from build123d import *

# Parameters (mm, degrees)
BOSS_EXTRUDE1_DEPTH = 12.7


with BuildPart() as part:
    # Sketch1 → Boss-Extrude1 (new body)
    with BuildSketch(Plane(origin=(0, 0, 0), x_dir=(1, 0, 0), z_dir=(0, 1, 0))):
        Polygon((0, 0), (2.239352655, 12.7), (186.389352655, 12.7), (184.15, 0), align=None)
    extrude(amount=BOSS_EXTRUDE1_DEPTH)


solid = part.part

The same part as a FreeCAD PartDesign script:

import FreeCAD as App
import Part
import Sketcher
from FreeCAD import Vector
Q = App.Units.Quantity


def add_polygon(sketch, points):
    """Adds a closed chain of lines whose ends are joined by coincident constraints."""
    first, n = sketch.GeometryCount, len(points)
    for a, b in zip(points, points[1:] + points[:1]):
        sketch.addGeometry(Part.LineSegment(App.Vector(*a, 0), App.Vector(*b, 0)), False)
    for i in range(n):
        sketch.addConstraint(Sketcher.Constraint("Coincident", first + i, 2, first + (i + 1) % n, 1))

doc = App.newDocument("Part")
body = doc.addObject("PartDesign::Body", "Body")

# Sketch on XZ plane
sketch1 = doc.addObject("Sketcher::SketchObject", "Sketch")
body.addObject(sketch1)
sketch1.AttachmentSupport = (doc.XZ_Plane, [""])
sketch1.MapMode = "FlatFace"
add_polygon(sketch1, [(2, -13), (0, 0), (184, 0), (186, -13)])  # lines 0-3
sketch1.addConstraint([
    Sketcher.Constraint("Horizontal", 1),
    Sketcher.Constraint("Horizontal", 3),
    Sketcher.Constraint("Coincident", 0, 2, -1, 1),
    Sketcher.Constraint("Parallel", 0, 2),
    Sketcher.Constraint("Angle", 0, Q("100 deg")),
    Sketcher.Constraint("DistanceX", 1, 1, 1, 2, Q("7.25 in")),
    Sketcher.Constraint("DistanceY", 2, 2, -1, 1, Q("0.5 in")),
])
pad1 = doc.addObject("PartDesign::Pad", "Pad")
body.addObject(pad1)
pad1.Profile = sketch1
pad1.Length = Q("0.5 in")
pad1.Reversed = True

doc.recompute()
